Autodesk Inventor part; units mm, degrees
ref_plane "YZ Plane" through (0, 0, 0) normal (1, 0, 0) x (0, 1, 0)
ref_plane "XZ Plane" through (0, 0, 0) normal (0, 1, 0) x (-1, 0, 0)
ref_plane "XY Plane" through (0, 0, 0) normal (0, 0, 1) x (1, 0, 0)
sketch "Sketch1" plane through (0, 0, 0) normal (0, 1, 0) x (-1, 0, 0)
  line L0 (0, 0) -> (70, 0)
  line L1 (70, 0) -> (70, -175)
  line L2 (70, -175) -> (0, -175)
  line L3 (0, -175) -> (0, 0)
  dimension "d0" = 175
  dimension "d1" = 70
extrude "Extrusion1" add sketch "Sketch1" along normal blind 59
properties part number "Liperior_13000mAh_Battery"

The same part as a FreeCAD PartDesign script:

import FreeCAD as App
import Part
import Sketcher
Q = App.Units.Quantity


def add_polygon(sketch, points):
    """Adds a closed chain of lines whose ends are joined by coincident constraints."""
    first, n = sketch.GeometryCount, len(points)
    for a, b in zip(points, points[1:] + points[:1]):
        sketch.addGeometry(Part.LineSegment(App.Vector(*a, 0), App.Vector(*b, 0)), False)
    for i in range(n):
        sketch.addConstraint(Sketcher.Constraint("Coincident", first + i, 2, first + (i + 1) % n, 1))

doc = App.newDocument("Part")
body = doc.addObject("PartDesign::Body", "Body")

sketch1 = body.newObject("Sketcher::SketchObject", "Sketch")
sketch1.AttachmentSupport = (doc.getObject("XZ_Plane"), [""])
sketch1.MapMode = "FlatFace"
add_polygon(sketch1, [(-70, 0), (0, 0), (0, -175), (-70, -175)])
sketch1.addConstraint([
    Sketcher.Constraint("Horizontal", 0),
    Sketcher.Constraint("Vertical", 1),
    Sketcher.Constraint("Horizontal", 2),
    Sketcher.Constraint("Vertical", 3),
    Sketcher.Constraint("Coincident", 0, 2, -1, 1),
    Sketcher.Constraint("DistanceX", 0, 1, 0, 2, Q("70 mm")),
    Sketcher.Constraint("DistanceY", 1, 2, 1, 1, Q("175 mm")),
])
pad1 = body.newObject("PartDesign::Pad", "Pad")
pad1.Profile = sketch1
pad1.Length = 59
pad1.Reversed = True

doc.recompute()
